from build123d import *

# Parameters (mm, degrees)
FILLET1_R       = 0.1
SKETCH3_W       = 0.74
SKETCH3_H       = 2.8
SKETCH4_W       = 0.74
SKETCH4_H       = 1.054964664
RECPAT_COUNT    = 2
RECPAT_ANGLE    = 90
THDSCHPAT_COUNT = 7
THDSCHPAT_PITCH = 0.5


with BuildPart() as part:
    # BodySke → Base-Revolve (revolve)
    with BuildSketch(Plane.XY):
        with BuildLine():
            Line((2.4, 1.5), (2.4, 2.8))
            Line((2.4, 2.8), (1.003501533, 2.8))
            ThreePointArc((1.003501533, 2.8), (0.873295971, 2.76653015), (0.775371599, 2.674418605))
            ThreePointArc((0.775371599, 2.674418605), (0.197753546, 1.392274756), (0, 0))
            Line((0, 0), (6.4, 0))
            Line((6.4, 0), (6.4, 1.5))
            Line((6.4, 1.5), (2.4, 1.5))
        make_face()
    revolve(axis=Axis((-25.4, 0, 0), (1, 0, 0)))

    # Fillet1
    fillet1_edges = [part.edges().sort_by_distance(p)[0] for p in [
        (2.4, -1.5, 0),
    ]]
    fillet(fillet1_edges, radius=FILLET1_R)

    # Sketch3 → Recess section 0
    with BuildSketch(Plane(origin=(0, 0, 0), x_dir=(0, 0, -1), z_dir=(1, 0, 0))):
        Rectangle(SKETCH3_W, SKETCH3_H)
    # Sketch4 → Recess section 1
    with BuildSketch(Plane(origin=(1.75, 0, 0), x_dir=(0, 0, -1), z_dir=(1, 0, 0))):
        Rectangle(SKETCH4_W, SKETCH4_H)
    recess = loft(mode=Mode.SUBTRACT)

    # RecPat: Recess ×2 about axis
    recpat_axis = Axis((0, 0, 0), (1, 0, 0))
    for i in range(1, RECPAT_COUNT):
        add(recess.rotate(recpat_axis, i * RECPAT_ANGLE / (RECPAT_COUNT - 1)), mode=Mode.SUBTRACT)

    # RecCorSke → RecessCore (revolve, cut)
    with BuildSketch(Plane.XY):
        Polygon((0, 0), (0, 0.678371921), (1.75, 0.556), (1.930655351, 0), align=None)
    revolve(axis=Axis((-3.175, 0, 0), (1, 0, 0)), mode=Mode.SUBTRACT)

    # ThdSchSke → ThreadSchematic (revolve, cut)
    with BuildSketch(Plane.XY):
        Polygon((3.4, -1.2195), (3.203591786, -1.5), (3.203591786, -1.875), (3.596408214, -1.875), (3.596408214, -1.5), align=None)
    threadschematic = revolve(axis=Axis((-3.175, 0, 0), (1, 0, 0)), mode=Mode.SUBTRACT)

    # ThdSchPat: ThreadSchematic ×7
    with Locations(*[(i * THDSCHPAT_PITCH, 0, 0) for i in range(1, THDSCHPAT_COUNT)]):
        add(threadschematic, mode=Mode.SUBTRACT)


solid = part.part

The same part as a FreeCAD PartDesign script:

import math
import FreeCAD as App
import Part
import Sketcher

V = App.Vector
Q = App.Units.Quantity


def edges_at(feature, points):
    """Names of the edges that pass closest to the given points."""
    edges = feature.Shape.Edges
    near = lambda p: min(range(len(edges)), key=lambda i: edges[i].distToShape(Part.Vertex(*p))[0])
    return sorted({f"Edge{near(p) + 1}" for p in points})

doc = App.newDocument("Part")
body = doc.addObject("PartDesign::Body", "Body")

sketch1 = body.newObject("Sketcher::SketchObject", "Sketch")
sketch1.AttachmentSupport = (doc.getObject("XY_Plane"), [""])
sketch1.MapMode = "FlatFace"
sketch1.addGeometry([
    Part.LineSegment(V(2.4, 1.5, 0), V(2.4, 2.8, 0)),
    Part.LineSegment(V(2.4, 2.8, 0), V(1, 2.8, 0)),
    Part.ArcOfCircle(Part.Circle(V(1, 2.53, 0), V(0, 0, 1), 0.27), math.radians(90), math.radians(148)),
    Part.ArcOfCircle(Part.Circle(V(5, 0, 0), V(0, 0, 1), 5), math.radians(148), math.radians(180)),
    Part.LineSegment(V(0, 0, 0), V(6.4, 0, 0)),
    Part.LineSegment(V(6.4, 0, 0), V(6.4, 1.5, 0)),
    Part.LineSegment(V(6.4, 1.5, 0), V(2.4, 1.5, 0)),
], False)
sketch1.addConstraint([
    Sketcher.Constraint("Coincident", 0, 2, 1, 1),
    Sketcher.Constraint("Tangent", 1, 2, 2, 1),
    Sketcher.Constraint("Tangent", 2, 2, 3, 1),
    Sketcher.Constraint("Coincident", 3, 2, 4, 1),
    Sketcher.Constraint("Coincident", 4, 2, 5, 1),
    Sketcher.Constraint("Coincident", 5, 2, 6, 1),
    Sketcher.Constraint("Coincident", 6, 2, 0, 1),
    Sketcher.Constraint("Vertical", 0),
    Sketcher.Constraint("Horizontal", 1),
    Sketcher.Constraint("Horizontal", 4),
    Sketcher.Constraint("Vertical", 5),
    Sketcher.Constraint("Horizontal", 6),
    Sketcher.Constraint("Coincident", 3, 2, -1, 1),
    Sketcher.Constraint("PointOnObject", 3, 3, -1),
    Sketcher.Constraint("Radius", 3, Q("5 mm")),
    Sketcher.Constraint("DistanceX", 6, 2, 6, 1, Q("4 mm")),
    Sketcher.Constraint("Radius", 2, Q("0.27 mm")),
    Sketcher.Constraint("DistanceX", 4, 1, 4, 2, Q("6.4 mm")),
    Sketcher.Constraint("DistanceY", 0, 1, 0, 2, Q("1.3 mm")),
    Sketcher.Constraint("DistanceY", 5, 1, 5, 2, Q("1.5 mm")),
])
revolution = body.newObject("PartDesign::Revolution", "Revolution")
revolution.Profile = sketch1
revolution.ReferenceAxis = (sketch1, ["H_Axis"])
revolution.Angle = 360
doc.recompute()

fillet = body.newObject("PartDesign::Fillet", "Fillet")
fillet.Base = (revolution, edges_at(revolution, [(2.4, -1.5, 0)]))
fillet.Radius = 0.1

sketch2 = body.newObject("Sketcher::SketchObject", "Sketch001")
sketch2.AttachmentSupport = (doc.getObject("YZ_Plane"), [""])
sketch2.MapMode = "FlatFace"
sketch2.addGeometry([
    Part.LineSegment(V(1.4, 0.4, 0), V(-1.4, 0.4, 0)),
    Part.LineSegment(V(-1.4, 0.4, 0), V(-1.4, -0.4, 0)),
    Part.LineSegment(V(-1.4, -0.4, 0), V(1.4, -0.4, 0)),
    Part.LineSegment(V(1.4, -0.4, 0), V(1.4, 0.4, 0)),
], False)
sketch2.addConstraint([
    Sketcher.Constraint("Coincident", 0, 2, 1, 1),
    Sketcher.Constraint("Coincident", 1, 2, 2, 1),
    Sketcher.Constraint("Coincident", 2, 2, 3, 1),
    Sketcher.Constraint("Coincident", 3, 2, 0, 1),
    Sketcher.Constraint("Horizontal", 0),
    Sketcher.Constraint("Vertical", 1),
    Sketcher.Constraint("Horizontal", 2),
    Sketcher.Constraint("Vertical", 3),
    Sketcher.Constraint("Symmetric", 0, 2, 2, 2, -1, 1),
    Sketcher.Constraint("DistanceX", 0, 2, 0, 1, Q("2.8 mm")),
    Sketcher.Constraint("DistanceY", 1, 2, 1, 1, Q("0.74 mm")),
])

sketch3 = body.newObject("Sketcher::SketchObject", "Sketch002")
sketch3.AttachmentSupport = (doc.getObject("YZ_Plane"), [""])
sketch3.MapMode = "FlatFace"
sketch3.AttachmentOffset = App.Placement(V(0, 0, 1.75), App.Rotation())
sketch3.addGeometry([
    Part.LineSegment(V(0.5, 0.4, 0), V(-0.5, 0.4, 0)),
    Part.LineSegment(V(-0.5, 0.4, 0), V(-0.5, -0.4, 0)),
    Part.LineSegment(V(-0.5, -0.4, 0), V(0.5, -0.4, 0)),
    Part.LineSegment(V(0.5, -0.4, 0), V(0.5, 0.4, 0)),
], False)
sketch3.addConstraint([
    Sketcher.Constraint("Coincident", 0, 2, 1, 1),
    Sketcher.Constraint("Coincident", 1, 2, 2, 1),
    Sketcher.Constraint("Coincident", 2, 2, 3, 1),
    Sketcher.Constraint("Coincident", 3, 2, 0, 1),
    Sketcher.Constraint("Horizontal", 0),
    Sketcher.Constraint("Vertical", 1),
    Sketcher.Constraint("Horizontal", 2),
    Sketcher.Constraint("Vertical", 3),
    Sketcher.Constraint("Symmetric", 0, 2, 2, 2, -1, 1),
    Sketcher.Constraint("DistanceY", 1, 2, 1, 1, Q("0.74 mm")),
    Sketcher.Constraint("DistanceX", 0, 2, 0, 1, Q("1.054965 mm")),
])

subtractiveloft = body.newObject("PartDesign::SubtractiveLoft", "SubtractiveLoft")
subtractiveloft.Profile = sketch2
subtractiveloft.Sections = [sketch3]
doc.recompute()

polarpattern = body.newObject("PartDesign::PolarPattern", "PolarPattern")
polarpattern.Originals = [subtractiveloft]
polarpattern.Axis = (doc.getObject("X_Axis"), [""])
polarpattern.Angle = 90
polarpattern.Occurrences = 2
body.Tip = polarpattern

sketch4 = body.newObject("Sketcher::SketchObject", "Sketch003")
sketch4.AttachmentSupport = (doc.getObject("XY_Plane"), [""])
sketch4.MapMode = "FlatFace"
sketch4.addGeometry([
    Part.LineSegment(V(0, 0.7, 0), V(0, 0, 0)),
    Part.LineSegment(V(0, 0, 0), V(1.9, 0, 0)),
    Part.LineSegment(V(1.9, 0, 0), V(1.8, 0.6, 0)),
    Part.LineSegment(V(1.8, 0.6, 0), V(0, 0.7, 0)),
], False)
sketch4.addConstraint([
    Sketcher.Constraint("Coincident", 0, 2, 1, 1),
    Sketcher.Constraint("Coincident", 1, 2, 2, 1),
    Sketcher.Constraint("Coincident", 2, 2, 3, 1),
    Sketcher.Constraint("Coincident", 3, 2, 0, 1),
    Sketcher.Constraint("Vertical", 0),
    Sketcher.Constraint("Horizontal", 1),
    Sketcher.Constraint("Coincident", 0, 2, -1, 1),
    Sketcher.Constraint("Angle", 2, Q("108 deg")),
    Sketcher.Constraint("Angle", 3, Q("176 deg")),
    Sketcher.Constraint("DistanceX", -1, 1, 2, 2, Q("1.75 mm")),
    Sketcher.Constraint("DistanceY", -1, 1, 2, 2, Q("0.556 mm")),
])
groove = body.newObject("PartDesign::Groove", "Groove")
groove.Profile = sketch4
groove.ReferenceAxis = (sketch4, ["H_Axis"])
groove.Angle = 360

sketch5 = body.newObject("Sketcher::SketchObject", "Sketch004")
sketch5.AttachmentSupport = (doc.getObject("XY_Plane"), [""])
sketch5.MapMode = "FlatFace"
sketch5.addGeometry([
    Part.LineSegment(V(3.4, -1.22, 0), V(3.2, -1.5, 0)),
    Part.LineSegment(V(3.2, -1.5, 0), V(3.2, -1.88, 0)),
    Part.LineSegment(V(3.2, -1.88, 0), V(3.6, -1.88, 0)),
    Part.LineSegment(V(3.6, -1.88, 0), V(3.6, -1.5, 0)),
    Part.LineSegment(V(3.6, -1.5, 0), V(3.4, -1.22, 0)),
], False)
sketch5.addConstraint([
    Sketcher.Constraint("Coincident", 0, 2, 1, 1),
    Sketcher.Constraint("Coincident", 1, 2, 2, 1),
    Sketcher.Constraint("Coincident", 2, 2, 3, 1),
    Sketcher.Constraint("Coincident", 3, 2, 4, 1),
    Sketcher.Constraint("Coincident", 4, 2, 0, 1),
    Sketcher.Constraint("Vertical", 1),
    Sketcher.Constraint("Horizontal", 2),
    Sketcher.Constraint("Vertical", 3),
    Sketcher.Constraint("Horizontal", 0, 2, 3, 2),
    Sketcher.Constraint("Equal", 0, 4),
    Sketcher.Constraint("Angle", 0, Q("-125 deg")),
    Sketcher.Constraint("DistanceY", 0, 2, -1, 1, Q("1.5 mm")),
    Sketcher.Constraint("DistanceX", -1, 1, 4, 2, Q("3.4 mm")),
    Sketcher.Constraint("DistanceY", 1, 2, 1, 1, Q("0.375 mm")),
    Sketcher.Constraint("DistanceY", 4, 2, -1, 1, Q("1.2195 mm")),
])
groove2 = body.newObject("PartDesign::Groove", "Groove001")
groove2.Profile = sketch5
groove2.ReferenceAxis = (sketch5, ["H_Axis"])
groove2.Angle = 360
doc.recompute()

linearpattern = body.newObject("PartDesign::LinearPattern", "LinearPattern")
linearpattern.Originals = [groove2]
linearpattern.Direction = (doc.getObject("X_Axis"), [""])
linearpattern.Mode = "offset"
linearpattern.Offset = 0.5
linearpattern.Occurrences = 7
body.Tip = linearpattern

doc.recompute()
